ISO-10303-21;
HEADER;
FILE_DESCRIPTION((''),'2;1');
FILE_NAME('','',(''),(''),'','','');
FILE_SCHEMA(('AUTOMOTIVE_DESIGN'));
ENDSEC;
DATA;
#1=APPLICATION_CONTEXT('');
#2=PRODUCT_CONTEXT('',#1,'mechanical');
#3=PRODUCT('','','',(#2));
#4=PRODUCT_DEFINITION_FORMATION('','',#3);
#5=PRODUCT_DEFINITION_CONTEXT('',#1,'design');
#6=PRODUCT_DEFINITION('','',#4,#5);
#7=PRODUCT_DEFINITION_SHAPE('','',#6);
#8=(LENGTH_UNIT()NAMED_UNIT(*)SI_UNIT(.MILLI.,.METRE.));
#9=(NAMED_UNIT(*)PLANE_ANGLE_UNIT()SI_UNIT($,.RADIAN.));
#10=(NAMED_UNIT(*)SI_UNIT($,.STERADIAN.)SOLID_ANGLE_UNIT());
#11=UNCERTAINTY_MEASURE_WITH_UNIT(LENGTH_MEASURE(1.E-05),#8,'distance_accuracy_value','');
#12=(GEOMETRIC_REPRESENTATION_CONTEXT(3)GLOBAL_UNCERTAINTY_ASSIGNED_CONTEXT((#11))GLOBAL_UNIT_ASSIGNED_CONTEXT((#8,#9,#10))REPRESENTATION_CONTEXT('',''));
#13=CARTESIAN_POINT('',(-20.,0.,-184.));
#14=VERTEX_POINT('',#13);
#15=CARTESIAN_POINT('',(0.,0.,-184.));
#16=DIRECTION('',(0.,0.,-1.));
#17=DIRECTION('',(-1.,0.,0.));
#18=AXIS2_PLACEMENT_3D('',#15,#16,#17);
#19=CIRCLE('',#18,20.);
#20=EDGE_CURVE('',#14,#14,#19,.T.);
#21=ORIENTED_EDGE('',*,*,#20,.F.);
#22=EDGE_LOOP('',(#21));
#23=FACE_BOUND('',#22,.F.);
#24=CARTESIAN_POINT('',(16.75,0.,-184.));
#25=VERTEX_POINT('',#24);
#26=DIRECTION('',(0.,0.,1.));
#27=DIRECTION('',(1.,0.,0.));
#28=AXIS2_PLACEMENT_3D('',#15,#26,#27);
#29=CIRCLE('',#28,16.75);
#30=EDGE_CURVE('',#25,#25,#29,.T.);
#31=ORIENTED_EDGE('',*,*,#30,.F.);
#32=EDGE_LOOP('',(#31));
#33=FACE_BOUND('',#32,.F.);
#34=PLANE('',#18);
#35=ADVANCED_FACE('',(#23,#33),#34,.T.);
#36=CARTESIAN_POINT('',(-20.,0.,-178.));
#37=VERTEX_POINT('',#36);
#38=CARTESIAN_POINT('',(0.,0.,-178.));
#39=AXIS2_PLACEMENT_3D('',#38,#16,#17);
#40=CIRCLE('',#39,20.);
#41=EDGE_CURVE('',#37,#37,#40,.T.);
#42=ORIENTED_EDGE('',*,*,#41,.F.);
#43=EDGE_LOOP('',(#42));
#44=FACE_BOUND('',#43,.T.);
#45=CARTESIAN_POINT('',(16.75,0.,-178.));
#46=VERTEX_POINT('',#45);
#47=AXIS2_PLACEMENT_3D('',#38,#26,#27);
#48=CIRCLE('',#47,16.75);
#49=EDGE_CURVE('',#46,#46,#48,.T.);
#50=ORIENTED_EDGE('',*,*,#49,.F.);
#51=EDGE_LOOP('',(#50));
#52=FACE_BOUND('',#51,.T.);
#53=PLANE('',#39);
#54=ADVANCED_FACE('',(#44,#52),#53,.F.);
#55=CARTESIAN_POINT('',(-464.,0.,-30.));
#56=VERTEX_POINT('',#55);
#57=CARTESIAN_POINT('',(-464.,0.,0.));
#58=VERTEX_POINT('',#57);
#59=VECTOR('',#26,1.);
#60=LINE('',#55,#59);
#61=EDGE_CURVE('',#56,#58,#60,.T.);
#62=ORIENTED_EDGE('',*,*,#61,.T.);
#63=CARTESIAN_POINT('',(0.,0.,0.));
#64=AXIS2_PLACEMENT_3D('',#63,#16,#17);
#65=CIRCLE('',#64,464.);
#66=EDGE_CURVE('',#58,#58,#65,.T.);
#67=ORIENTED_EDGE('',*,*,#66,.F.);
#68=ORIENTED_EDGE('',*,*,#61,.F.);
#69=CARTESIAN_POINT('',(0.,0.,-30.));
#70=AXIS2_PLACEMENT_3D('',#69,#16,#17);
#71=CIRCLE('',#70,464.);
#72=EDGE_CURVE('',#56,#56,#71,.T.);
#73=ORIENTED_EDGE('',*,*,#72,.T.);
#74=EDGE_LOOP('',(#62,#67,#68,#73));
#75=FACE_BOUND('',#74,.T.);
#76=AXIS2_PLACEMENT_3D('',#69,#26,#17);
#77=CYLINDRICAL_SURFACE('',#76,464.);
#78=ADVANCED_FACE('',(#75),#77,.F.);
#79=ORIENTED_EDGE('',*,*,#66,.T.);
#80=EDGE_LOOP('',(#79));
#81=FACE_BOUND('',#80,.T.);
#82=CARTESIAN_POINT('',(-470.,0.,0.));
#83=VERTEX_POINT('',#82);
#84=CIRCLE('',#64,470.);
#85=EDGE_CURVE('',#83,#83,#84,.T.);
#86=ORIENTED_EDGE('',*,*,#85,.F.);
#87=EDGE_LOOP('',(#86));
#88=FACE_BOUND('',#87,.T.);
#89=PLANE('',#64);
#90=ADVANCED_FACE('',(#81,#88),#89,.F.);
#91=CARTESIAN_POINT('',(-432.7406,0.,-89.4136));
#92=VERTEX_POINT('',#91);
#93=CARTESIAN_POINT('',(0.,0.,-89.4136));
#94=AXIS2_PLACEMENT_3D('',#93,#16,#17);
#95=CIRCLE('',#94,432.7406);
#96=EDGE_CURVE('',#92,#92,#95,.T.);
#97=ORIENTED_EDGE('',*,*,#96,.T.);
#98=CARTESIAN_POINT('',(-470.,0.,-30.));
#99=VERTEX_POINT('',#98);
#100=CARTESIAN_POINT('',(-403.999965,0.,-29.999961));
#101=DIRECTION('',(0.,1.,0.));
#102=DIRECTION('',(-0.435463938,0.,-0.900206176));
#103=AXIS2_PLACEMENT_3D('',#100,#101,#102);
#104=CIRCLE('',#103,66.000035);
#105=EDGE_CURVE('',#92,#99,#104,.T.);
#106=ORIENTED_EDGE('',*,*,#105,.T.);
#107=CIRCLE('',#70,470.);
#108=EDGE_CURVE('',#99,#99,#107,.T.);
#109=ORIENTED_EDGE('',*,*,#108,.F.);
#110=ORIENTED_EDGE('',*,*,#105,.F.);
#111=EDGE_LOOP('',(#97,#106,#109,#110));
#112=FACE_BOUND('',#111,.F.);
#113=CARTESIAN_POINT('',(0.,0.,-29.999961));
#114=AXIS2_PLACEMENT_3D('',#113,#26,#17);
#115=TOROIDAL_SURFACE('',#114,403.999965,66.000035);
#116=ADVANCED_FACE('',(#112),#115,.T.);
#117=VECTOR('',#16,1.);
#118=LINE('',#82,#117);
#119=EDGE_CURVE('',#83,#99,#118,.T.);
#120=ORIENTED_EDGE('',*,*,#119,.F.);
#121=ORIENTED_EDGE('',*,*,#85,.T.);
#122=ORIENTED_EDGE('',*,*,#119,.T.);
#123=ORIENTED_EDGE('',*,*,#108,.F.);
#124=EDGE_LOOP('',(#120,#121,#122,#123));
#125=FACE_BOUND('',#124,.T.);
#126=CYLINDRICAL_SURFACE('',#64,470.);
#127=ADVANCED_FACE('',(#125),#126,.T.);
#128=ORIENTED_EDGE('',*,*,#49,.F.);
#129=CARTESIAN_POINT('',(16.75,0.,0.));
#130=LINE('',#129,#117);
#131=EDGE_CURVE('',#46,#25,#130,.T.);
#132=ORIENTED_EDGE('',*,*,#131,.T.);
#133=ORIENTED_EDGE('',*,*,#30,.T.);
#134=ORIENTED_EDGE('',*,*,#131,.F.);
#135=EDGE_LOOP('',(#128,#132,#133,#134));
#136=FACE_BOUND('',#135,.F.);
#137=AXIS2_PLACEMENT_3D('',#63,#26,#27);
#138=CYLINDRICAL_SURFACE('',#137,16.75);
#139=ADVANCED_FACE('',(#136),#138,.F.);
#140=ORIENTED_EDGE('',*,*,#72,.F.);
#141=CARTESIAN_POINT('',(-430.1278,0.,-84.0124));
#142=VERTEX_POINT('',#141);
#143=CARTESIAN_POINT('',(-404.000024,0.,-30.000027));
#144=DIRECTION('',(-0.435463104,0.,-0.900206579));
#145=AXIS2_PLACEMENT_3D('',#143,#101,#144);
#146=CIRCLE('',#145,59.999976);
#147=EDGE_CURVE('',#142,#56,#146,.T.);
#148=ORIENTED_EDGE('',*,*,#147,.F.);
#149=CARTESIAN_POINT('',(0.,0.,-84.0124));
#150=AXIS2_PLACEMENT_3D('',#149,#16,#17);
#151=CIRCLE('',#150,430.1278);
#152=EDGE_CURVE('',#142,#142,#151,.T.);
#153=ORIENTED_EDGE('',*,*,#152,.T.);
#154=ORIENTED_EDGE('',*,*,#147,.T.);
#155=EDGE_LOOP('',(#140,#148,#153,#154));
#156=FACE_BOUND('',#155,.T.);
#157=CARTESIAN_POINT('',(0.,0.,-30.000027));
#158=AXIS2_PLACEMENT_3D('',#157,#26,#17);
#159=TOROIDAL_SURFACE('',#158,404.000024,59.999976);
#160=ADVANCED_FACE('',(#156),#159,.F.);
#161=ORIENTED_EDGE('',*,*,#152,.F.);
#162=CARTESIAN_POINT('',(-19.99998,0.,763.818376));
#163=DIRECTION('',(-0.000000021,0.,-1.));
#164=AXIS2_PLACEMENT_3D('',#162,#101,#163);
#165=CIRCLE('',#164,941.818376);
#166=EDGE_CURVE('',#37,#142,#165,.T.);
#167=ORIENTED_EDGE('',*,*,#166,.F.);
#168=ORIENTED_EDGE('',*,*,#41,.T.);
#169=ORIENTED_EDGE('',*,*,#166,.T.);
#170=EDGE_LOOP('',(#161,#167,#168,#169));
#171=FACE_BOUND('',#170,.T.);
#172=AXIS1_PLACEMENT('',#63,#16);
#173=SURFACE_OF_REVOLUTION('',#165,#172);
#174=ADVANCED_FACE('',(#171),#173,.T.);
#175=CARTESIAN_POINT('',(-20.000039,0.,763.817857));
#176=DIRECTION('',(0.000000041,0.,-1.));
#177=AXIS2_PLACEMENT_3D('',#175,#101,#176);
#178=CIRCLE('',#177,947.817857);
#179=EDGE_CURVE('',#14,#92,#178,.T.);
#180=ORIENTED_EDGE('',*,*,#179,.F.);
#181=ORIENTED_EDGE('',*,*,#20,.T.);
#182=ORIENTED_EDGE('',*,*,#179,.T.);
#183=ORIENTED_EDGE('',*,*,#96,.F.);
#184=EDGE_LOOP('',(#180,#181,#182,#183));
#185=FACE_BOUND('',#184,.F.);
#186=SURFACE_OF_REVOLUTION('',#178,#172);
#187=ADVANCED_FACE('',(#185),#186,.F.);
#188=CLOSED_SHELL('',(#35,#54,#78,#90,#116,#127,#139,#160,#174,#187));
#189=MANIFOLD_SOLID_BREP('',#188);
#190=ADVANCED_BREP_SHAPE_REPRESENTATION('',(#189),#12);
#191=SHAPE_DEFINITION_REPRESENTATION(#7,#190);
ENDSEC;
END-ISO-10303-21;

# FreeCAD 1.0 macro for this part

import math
import FreeCAD as App
import Part
import Sketcher

V = App.Vector

doc = App.newDocument("Part")
body = doc.addObject("PartDesign::Body", "Body")

sketch1 = doc.addObject("Sketcher::SketchObject", "Sketch")
body.addObject(sketch1)
sketch1.AttachmentSupport = (doc.XZ_Plane, [""])
sketch1.MapMode = "FlatFace"
sketch1.addGeometry(Part.LineSegment(V(-470, -30, 0), V(-470, 0, 0)), False)
sketch1.addGeometry(Part.LineSegment(V(-470, 0, 0), V(-464, 0, 0)), False)
sketch1.addGeometry(Part.LineSegment(V(-464, 0, 0), V(-464, -30, 0)), False)
sketch1.addGeometry(Part.ArcOfCircle(Part.Circle(V(-404, -30, 0), V(0, 0, 1), 60), math.radians(180), math.radians(244)), False)
sketch1.addGeometry(Part.ArcOfCircle(Part.Circle(V(-20, 764, 0), V(0, 0, 1), 942), math.radians(-116), math.radians(-90)), False)
sketch1.addGeometry(Part.LineSegment(V(-20, -178, 0), V(0, -178, 0)), False)
sketch1.addGeometry(Part.LineSegment(V(0, -178, 0), V(0, -184, 0)), False)
sketch1.addGeometry(Part.LineSegment(V(0, -184, 0), V(-20, -184, 0)), False)
sketch1.addGeometry(Part.ArcOfCircle(Part.Circle(V(-20, 764, 0), V(0, 0, 1), 948), math.radians(-116), math.radians(-90)), False)
sketch1.addGeometry(Part.ArcOfCircle(Part.Circle(V(-404, -30, 0), V(0, 0, 1), 66), math.radians(180), math.radians(244)), False)
sketch1.addConstraint(Sketcher.Constraint("Coincident", 0, 2, 1, 1))
sketch1.addConstraint(Sketcher.Constraint("Coincident", 1, 2, 2, 1))
sketch1.addConstraint(Sketcher.Constraint("Tangent", 2, 2, 3, 1))
sketch1.addConstraint(Sketcher.Constraint("Tangent", 3, 2, 4, 1))
sketch1.addConstraint(Sketcher.Constraint("Tangent", 4, 2, 5, 1))
sketch1.addConstraint(Sketcher.Constraint("Coincident", 5, 2, 6, 1))
sketch1.addConstraint(Sketcher.Constraint("Coincident", 6, 2, 7, 1))
sketch1.addConstraint(Sketcher.Constraint("Tangent", 7, 2, 8, 2))
sketch1.addConstraint(Sketcher.Constraint("Tangent", 8, 1, 9, 2))
sketch1.addConstraint(Sketcher.Constraint("Tangent", 9, 1, 0, 1))
sketch1.addConstraint(Sketcher.Constraint("Vertical", 0))
sketch1.addConstraint(Sketcher.Constraint("Horizontal", 1))
sketch1.addConstraint(Sketcher.Constraint("Vertical", 2))
sketch1.addConstraint(Sketcher.Constraint("Horizontal", 5))
sketch1.addConstraint(Sketcher.Constraint("Vertical", 6))
sketch1.addConstraint(Sketcher.Constraint("Horizontal", 7))
sketch1.addConstraint(Sketcher.Constraint("Coincident", 8, 3, 4, 3))
sketch1.addConstraint(Sketcher.Constraint("Coincident", 9, 3, 3, 3))
sketch1.addConstraint(Sketcher.Constraint("PointOnObject", 0, 2, -1))
sketch1.addConstraint(Sketcher.Constraint("PointOnObject", 5, 2, -2))
sketch1.addConstraint(Sketcher.Constraint("Radius", 3, 60.0))
sketch1.addConstraint(Sketcher.Constraint("DistanceX", 1, 1, 1, 2, 6.0))
sketch1.addConstraint(Sketcher.Constraint("DistanceY", 0, 1, 0, 2, 30.0))
sketch1.addConstraint(Sketcher.Constraint("DistanceY", 6, 2, -1, 1, 184.0))
sketch1.addConstraint(Sketcher.Constraint("Radius", 8, 947.8182))
sketch1.addConstraint(Sketcher.Constraint("DistanceX", 5, 1, 5, 2, 20.0))
revolution = doc.addObject("PartDesign::Revolution", "Revolution")
body.addObject(revolution)
revolution.Profile = sketch1
revolution.ReferenceAxis = (sketch1, ["V_Axis"])
revolution.Angle = 360

sketch2 = doc.addObject("Sketcher::SketchObject", "Sketch001")
body.addObject(sketch2)
sketch2.AttachmentSupport = (doc.XY_Plane, [""])
sketch2.MapMode = "FlatFace"
sketch2.addGeometry(Part.Circle(V(0, 0, 0), V(0, 0, 1), 17), False)
sketch2.addConstraint(Sketcher.Constraint("Coincident", 0, 3, -1, 1))
sketch2.addConstraint(Sketcher.Constraint("Diameter", 0, 33.5))
pocket1 = doc.addObject("PartDesign::Pocket", "Pocket")
body.addObject(pocket1)
pocket1.Profile = sketch2
pocket1.Type = "ThroughAll"

doc.recompute()
